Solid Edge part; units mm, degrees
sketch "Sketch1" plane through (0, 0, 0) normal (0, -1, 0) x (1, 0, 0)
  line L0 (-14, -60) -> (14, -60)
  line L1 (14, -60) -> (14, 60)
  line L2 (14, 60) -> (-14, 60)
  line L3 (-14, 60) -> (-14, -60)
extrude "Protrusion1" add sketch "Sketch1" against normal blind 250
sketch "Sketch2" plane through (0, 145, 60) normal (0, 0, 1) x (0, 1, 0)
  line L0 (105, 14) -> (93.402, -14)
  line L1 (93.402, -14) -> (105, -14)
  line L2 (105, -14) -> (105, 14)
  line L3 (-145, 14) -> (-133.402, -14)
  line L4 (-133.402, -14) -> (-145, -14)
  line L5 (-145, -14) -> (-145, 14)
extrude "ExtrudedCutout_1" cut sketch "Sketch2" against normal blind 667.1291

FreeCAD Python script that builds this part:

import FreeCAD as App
import Part
import Sketcher
Q = App.Units.Quantity

doc = App.newDocument("Part")
params = doc.addObject("Spreadsheet::Sheet", "Params")
for row, (alias, value) in enumerate([
    ("sketch1_width", "28 mm"),
    ("sketch1_height", "120 mm"),
    ("pad1_length", "250 mm"),
    ("sketch2_width", "28 mm"),
    ("pocket1_length", "667.1291 mm"),
], start=1):
    params.set(f"A{row}", alias)
    params.set(f"B{row}", "=" + value)
    params.setAlias(f"B{row}", alias)

body = doc.addObject("PartDesign::Body", "Body")

# Sketch on XZ plane
sketch1 = body.newObject("Sketcher::SketchObject", "Sketch")
sketch1.AttachmentSupport = (doc.getObject("XZ_Plane"), [""])
sketch1.MapMode = "FlatFace"
sketch1.addGeometry(Part.LineSegment(App.Vector(-14, 60, 0), App.Vector(-14, -60, 0)), False)
sketch1.addGeometry(Part.LineSegment(App.Vector(-14, -60, 0), App.Vector(14, -60, 0)), False)
sketch1.addGeometry(Part.LineSegment(App.Vector(14, -60, 0), App.Vector(14, 60, 0)), False)
sketch1.addGeometry(Part.LineSegment(App.Vector(14, 60, 0), App.Vector(-14, 60, 0)), False)
sketch1.addConstraint(Sketcher.Constraint("Coincident", 0, 2, 1, 1))
sketch1.addConstraint(Sketcher.Constraint("Coincident", 1, 2, 2, 1))
sketch1.addConstraint(Sketcher.Constraint("Coincident", 2, 2, 3, 1))
sketch1.addConstraint(Sketcher.Constraint("Coincident", 3, 2, 0, 1))
sketch1.addConstraint(Sketcher.Constraint("Vertical", 0))
sketch1.addConstraint(Sketcher.Constraint("Horizontal", 1))
sketch1.addConstraint(Sketcher.Constraint("Vertical", 2))
sketch1.addConstraint(Sketcher.Constraint("Horizontal", 3))
sketch1.addConstraint(Sketcher.Constraint("Symmetric", 0, 2, 2, 2, -1, 1))
sketch1.addConstraint(Sketcher.Constraint("DistanceX", 1, 1, 1, 2, Q("28 mm")))
sketch1.addConstraint(Sketcher.Constraint("DistanceY", 0, 2, 0, 1, Q("120 mm")))
sketch1.setExpression("Constraints[9]", "Params.sketch1_width")
sketch1.setExpression("Constraints[10]", "Params.sketch1_height")
pad1 = body.newObject("PartDesign::Pad", "Pad")
pad1.Profile = sketch1
pad1.setExpression("Length", "Params.pad1_length")
pad1.Reversed = True

# Sketch on XY plane
sketch2 = body.newObject("Sketcher::SketchObject", "Sketch001")
sketch2.AttachmentSupport = (doc.getObject("XY_Plane"), [""])
sketch2.MapMode = "FlatFace"
sketch2.AttachmentOffset = App.Placement(App.Vector(0, 0, 60), App.Rotation())
sketch2.addGeometry(Part.LineSegment(App.Vector(14, 250, 0), App.Vector(-14, 250, 0)), False)
sketch2.addGeometry(Part.LineSegment(App.Vector(-14, 250, 0), App.Vector(14, 238.402, 0)), False)
sketch2.addGeometry(Part.LineSegment(App.Vector(14, 238.402, 0), App.Vector(14, 250, 0)), False)
sketch2.addGeometry(Part.LineSegment(App.Vector(14, 11.598, 0), App.Vector(-14, 0, 0)), False)
sketch2.addGeometry(Part.LineSegment(App.Vector(-14, 0, 0), App.Vector(14, 0, 0)), False)
sketch2.addGeometry(Part.LineSegment(App.Vector(14, 0, 0), App.Vector(14, 11.598, 0)), False)
sketch2.addConstraint(Sketcher.Constraint("Coincident", 0, 2, 1, 1))
sketch2.addConstraint(Sketcher.Constraint("Coincident", 1, 2, 2, 1))
sketch2.addConstraint(Sketcher.Constraint("Coincident", 2, 2, 0, 1))
sketch2.addConstraint(Sketcher.Constraint("Coincident", 3, 2, 4, 1))
sketch2.addConstraint(Sketcher.Constraint("Coincident", 4, 2, 5, 1))
sketch2.addConstraint(Sketcher.Constraint("Coincident", 5, 2, 3, 1))
sketch2.addConstraint(Sketcher.Constraint("Horizontal", 0))
sketch2.addConstraint(Sketcher.Constraint("Vertical", 2))
sketch2.addConstraint(Sketcher.Constraint("Horizontal", 4))
sketch2.addConstraint(Sketcher.Constraint("Vertical", 5))
sketch2.addConstraint(Sketcher.Constraint("Symmetric", 3, 2, 4, 2, -1, 1))
sketch2.addConstraint(Sketcher.Constraint("Vertical", 0, 2, 3, 2))
sketch2.addConstraint(Sketcher.Constraint("Vertical", 2, 2, 4, 2))
sketch2.addConstraint(Sketcher.Constraint("Equal", 2, 5))
sketch2.addConstraint(Sketcher.Constraint("DistanceX", 0, 2, 0, 1, Q("28 mm")))
sketch2.addConstraint(Sketcher.Constraint("DistanceY", -1, 1, 0, 2, Q("250 mm")))
sketch2.addConstraint(Sketcher.Constraint("Angle", 1, Q("-22.5 deg")))
sketch2.setExpression("Constraints[14]", "Params.sketch2_width")
pocket1 = body.newObject("PartDesign::Pocket", "Pocket")
pocket1.Profile = sketch2
pocket1.setExpression("Length", "Params.pocket1_length")

doc.recompute()
